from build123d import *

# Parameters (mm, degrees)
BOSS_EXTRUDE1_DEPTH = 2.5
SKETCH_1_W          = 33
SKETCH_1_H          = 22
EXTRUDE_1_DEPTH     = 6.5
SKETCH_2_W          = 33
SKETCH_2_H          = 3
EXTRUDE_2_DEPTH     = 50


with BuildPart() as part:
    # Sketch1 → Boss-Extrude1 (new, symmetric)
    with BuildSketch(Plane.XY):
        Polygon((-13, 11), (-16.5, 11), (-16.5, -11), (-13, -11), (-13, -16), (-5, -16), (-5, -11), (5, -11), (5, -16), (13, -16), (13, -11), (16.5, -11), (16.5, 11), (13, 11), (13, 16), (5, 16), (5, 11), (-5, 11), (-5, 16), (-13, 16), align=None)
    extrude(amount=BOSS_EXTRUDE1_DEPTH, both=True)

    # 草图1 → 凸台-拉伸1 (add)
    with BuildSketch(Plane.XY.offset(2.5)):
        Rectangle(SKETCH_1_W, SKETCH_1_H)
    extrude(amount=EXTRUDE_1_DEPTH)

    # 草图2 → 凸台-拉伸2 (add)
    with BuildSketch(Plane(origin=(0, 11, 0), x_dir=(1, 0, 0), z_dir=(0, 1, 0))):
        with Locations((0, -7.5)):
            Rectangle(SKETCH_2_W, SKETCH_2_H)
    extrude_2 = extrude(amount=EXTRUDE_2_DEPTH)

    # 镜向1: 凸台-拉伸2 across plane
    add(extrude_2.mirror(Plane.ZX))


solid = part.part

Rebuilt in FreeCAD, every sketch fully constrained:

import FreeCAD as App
import Part
import Sketcher

doc = App.newDocument("Part")
body = doc.addObject("PartDesign::Body", "Body")

# Sketch on XY plane
sketch1 = doc.addObject("Sketcher::SketchObject", "Sketch")
body.addObject(sketch1)
sketch1.AttachmentSupport = (doc.XY_Plane, [""])
sketch1.MapMode = "FlatFace"
sketch1.addGeometry(Part.LineSegment(App.Vector(-13, 11, 0), App.Vector(-16.5, 11, 0)), False)
sketch1.addGeometry(Part.LineSegment(App.Vector(-16.5, 11, 0), App.Vector(-16.5, -11, 0)), False)
sketch1.addGeometry(Part.LineSegment(App.Vector(-16.5, -11, 0), App.Vector(-13, -11, 0)), False)
sketch1.addGeometry(Part.LineSegment(App.Vector(-13, -11, 0), App.Vector(-13, -16, 0)), False)
sketch1.addGeometry(Part.LineSegment(App.Vector(-13, -16, 0), App.Vector(-5, -16, 0)), False)
sketch1.addGeometry(Part.LineSegment(App.Vector(-5, -16, 0), App.Vector(-5, -11, 0)), False)
sketch1.addGeometry(Part.LineSegment(App.Vector(-5, -11, 0), App.Vector(5, -11, 0)), False)
sketch1.addGeometry(Part.LineSegment(App.Vector(5, -11, 0), App.Vector(5, -16, 0)), False)
sketch1.addGeometry(Part.LineSegment(App.Vector(5, -16, 0), App.Vector(13, -16, 0)), False)
sketch1.addGeometry(Part.LineSegment(App.Vector(13, -16, 0), App.Vector(13, -11, 0)), False)
sketch1.addGeometry(Part.LineSegment(App.Vector(13, -11, 0), App.Vector(16.5, -11, 0)), False)
sketch1.addGeometry(Part.LineSegment(App.Vector(16.5, -11, 0), App.Vector(16.5, 11, 0)), False)
sketch1.addGeometry(Part.LineSegment(App.Vector(16.5, 11, 0), App.Vector(13, 11, 0)), False)
sketch1.addGeometry(Part.LineSegment(App.Vector(13, 11, 0), App.Vector(13, 16, 0)), False)
sketch1.addGeometry(Part.LineSegment(App.Vector(13, 16, 0), App.Vector(5, 16, 0)), False)
sketch1.addGeometry(Part.LineSegment(App.Vector(5, 16, 0), App.Vector(5, 11, 0)), False)
sketch1.addGeometry(Part.LineSegment(App.Vector(5, 11, 0), App.Vector(-5, 11, 0)), False)
sketch1.addGeometry(Part.LineSegment(App.Vector(-5, 11, 0), App.Vector(-5, 16, 0)), False)
sketch1.addGeometry(Part.LineSegment(App.Vector(-5, 16, 0), App.Vector(-13, 16, 0)), False)
sketch1.addGeometry(Part.LineSegment(App.Vector(-13, 16, 0), App.Vector(-13, 11, 0)), False)
sketch1.addConstraint(Sketcher.Constraint("Coincident", 0, 2, 1, 1))
sketch1.addConstraint(Sketcher.Constraint("Coincident", 1, 2, 2, 1))
sketch1.addConstraint(Sketcher.Constraint("Coincident", 2, 2, 3, 1))
sketch1.addConstraint(Sketcher.Constraint("Coincident", 3, 2, 4, 1))
sketch1.addConstraint(Sketcher.Constraint("Coincident", 4, 2, 5, 1))
sketch1.addConstraint(Sketcher.Constraint("Coincident", 5, 2, 6, 1))
sketch1.addConstraint(Sketcher.Constraint("Coincident", 6, 2, 7, 1))
sketch1.addConstraint(Sketcher.Constraint("Coincident", 7, 2, 8, 1))
sketch1.addConstraint(Sketcher.Constraint("Coincident", 8, 2, 9, 1))
sketch1.addConstraint(Sketcher.Constraint("Coincident", 9, 2, 10, 1))
sketch1.addConstraint(Sketcher.Constraint("Coincident", 10, 2, 11, 1))
sketch1.addConstraint(Sketcher.Constraint("Coincident", 11, 2, 12, 1))
sketch1.addConstraint(Sketcher.Constraint("Coincident", 12, 2, 13, 1))
sketch1.addConstraint(Sketcher.Constraint("Coincident", 13, 2, 14, 1))
sketch1.addConstraint(Sketcher.Constraint("Coincident", 14, 2, 15, 1))
sketch1.addConstraint(Sketcher.Constraint("Coincident", 15, 2, 16, 1))
sketch1.addConstraint(Sketcher.Constraint("Coincident", 16, 2, 17, 1))
sketch1.addConstraint(Sketcher.Constraint("Coincident", 17, 2, 18, 1))
sketch1.addConstraint(Sketcher.Constraint("Coincident", 18, 2, 19, 1))
sketch1.addConstraint(Sketcher.Constraint("Coincident", 19, 2, 0, 1))
sketch1.addConstraint(Sketcher.Constraint("Horizontal", 0))
sketch1.addConstraint(Sketcher.Constraint("Vertical", 1))
sketch1.addConstraint(Sketcher.Constraint("Horizontal", 2))
sketch1.addConstraint(Sketcher.Constraint("Vertical", 3))
sketch1.addConstraint(Sketcher.Constraint("Horizontal", 4))
sketch1.addConstraint(Sketcher.Constraint("Vertical", 5))
sketch1.addConstraint(Sketcher.Constraint("Horizontal", 6))
sketch1.addConstraint(Sketcher.Constraint("Vertical", 7))
sketch1.addConstraint(Sketcher.Constraint("Horizontal", 8))
sketch1.addConstraint(Sketcher.Constraint("Vertical", 9))
sketch1.addConstraint(Sketcher.Constraint("Horizontal", 10))
sketch1.addConstraint(Sketcher.Constraint("Vertical", 11))
sketch1.addConstraint(Sketcher.Constraint("Horizontal", 12))
sketch1.addConstraint(Sketcher.Constraint("Vertical", 13))
sketch1.addConstraint(Sketcher.Constraint("Horizontal", 14))
sketch1.addConstraint(Sketcher.Constraint("Vertical", 15))
sketch1.addConstraint(Sketcher.Constraint("Horizontal", 16))
sketch1.addConstraint(Sketcher.Constraint("Vertical", 17))
sketch1.addConstraint(Sketcher.Constraint("Horizontal", 18))
sketch1.addConstraint(Sketcher.Constraint("Vertical", 19))
sketch1.addConstraint(Sketcher.Constraint("Symmetric", 0, 2, 10, 2, -1, 1))
sketch1.addConstraint(Sketcher.Constraint("Symmetric", 2, 2, 12, 2, -1, 1))
sketch1.addConstraint(Sketcher.Constraint("Symmetric", 4, 2, 14, 2, -1, 1))
sketch1.addConstraint(Sketcher.Constraint("Symmetric", 6, 2, 16, 2, -1, 1))
sketch1.addConstraint(Sketcher.Constraint("Symmetric", 8, 2, 18, 2, -1, 1))
sketch1.addConstraint(Sketcher.Constraint("Symmetric", 4, 2, 7, 2, -2))
sketch1.addConstraint(Sketcher.Constraint("Symmetric", 2, 2, 9, 2, -2))
sketch1.addConstraint(Sketcher.Constraint("Horizontal", 2, 2, 5, 2))
sketch1.addConstraint(Sketcher.Constraint("DistanceX", 4, 1, 4, 2, 8.0))
sketch1.addConstraint(Sketcher.Constraint("DistanceX", 6, 1, 6, 2, 10.0))
sketch1.addConstraint(Sketcher.Constraint("DistanceY", 1, 2, 1, 1, 22.0))
sketch1.addConstraint(Sketcher.Constraint("DistanceY", 3, 2, 3, 1, 5.0))
sketch1.addConstraint(Sketcher.Constraint("DistanceX", 0, 2, 0, 1, 3.5))
pad1 = doc.addObject("PartDesign::Pad", "Pad")
body.addObject(pad1)
pad1.Profile = sketch1
pad1.Length = 5
pad1.Midplane = True

# Sketch on XY plane
sketch2 = doc.addObject("Sketcher::SketchObject", "Sketch001")
body.addObject(sketch2)
sketch2.AttachmentSupport = (doc.XY_Plane, [""])
sketch2.MapMode = "FlatFace"
sketch2.AttachmentOffset = App.Placement(App.Vector(0, 0, 2.5), App.Rotation())
sketch2.addGeometry(Part.LineSegment(App.Vector(-16, 11, 0), App.Vector(-16, -11, 0)), False)
sketch2.addGeometry(Part.LineSegment(App.Vector(-16, -11, 0), App.Vector(16, -11, 0)), False)
sketch2.addGeometry(Part.LineSegment(App.Vector(16, -11, 0), App.Vector(16, 11, 0)), False)
sketch2.addGeometry(Part.LineSegment(App.Vector(16, 11, 0), App.Vector(-16, 11, 0)), False)
sketch2.addConstraint(Sketcher.Constraint("Coincident", 0, 2, 1, 1))
sketch2.addConstraint(Sketcher.Constraint("Coincident", 1, 2, 2, 1))
sketch2.addConstraint(Sketcher.Constraint("Coincident", 2, 2, 3, 1))
sketch2.addConstraint(Sketcher.Constraint("Coincident", 3, 2, 0, 1))
sketch2.addConstraint(Sketcher.Constraint("Vertical", 0))
sketch2.addConstraint(Sketcher.Constraint("Horizontal", 1))
sketch2.addConstraint(Sketcher.Constraint("Vertical", 2))
sketch2.addConstraint(Sketcher.Constraint("Horizontal", 3))
sketch2.addConstraint(Sketcher.Constraint("Symmetric", 0, 2, 2, 2, -1, 1))
sketch2.addConstraint(Sketcher.Constraint("DistanceX", 1, 1, 1, 2, 33.0))
sketch2.addConstraint(Sketcher.Constraint("DistanceY", 0, 2, 0, 1, 22.0))
pad2 = doc.addObject("PartDesign::Pad", "Pad001")
body.addObject(pad2)
pad2.Profile = sketch2
pad2.Length = 6.5

# Sketch on XZ plane
sketch3 = doc.addObject("Sketcher::SketchObject", "Sketch002")
body.addObject(sketch3)
sketch3.AttachmentSupport = (doc.XZ_Plane, [""])
sketch3.MapMode = "FlatFace"
sketch3.AttachmentOffset = App.Placement(App.Vector(0, 0, -11), App.Rotation())
sketch3.addGeometry(Part.LineSegment(App.Vector(-16.5, 6, 0), App.Vector(-16.5, 9, 0)), False)
sketch3.addGeometry(Part.LineSegment(App.Vector(-16.5, 9, 0), App.Vector(16.5, 9, 0)), False)
sketch3.addGeometry(Part.LineSegment(App.Vector(16.5, 9, 0), App.Vector(16.5, 6, 0)), False)
sketch3.addGeometry(Part.LineSegment(App.Vector(16.5, 6, 0), App.Vector(-16.5, 6, 0)), False)
sketch3.addConstraint(Sketcher.Constraint("Coincident", 0, 2, 1, 1))
sketch3.addConstraint(Sketcher.Constraint("Coincident", 1, 2, 2, 1))
sketch3.addConstraint(Sketcher.Constraint("Coincident", 2, 2, 3, 1))
sketch3.addConstraint(Sketcher.Constraint("Coincident", 3, 2, 0, 1))
sketch3.addConstraint(Sketcher.Constraint("Vertical", 0))
sketch3.addConstraint(Sketcher.Constraint("Horizontal", 1))
sketch3.addConstraint(Sketcher.Constraint("Vertical", 2))
sketch3.addConstraint(Sketcher.Constraint("Horizontal", 3))
sketch3.addConstraint(Sketcher.Constraint("DistanceX", 1, 1, 1, 2, 33.0))
sketch3.addConstraint(Sketcher.Constraint("DistanceY", 0, 1, 0, 2, 3.0))
sketch3.addConstraint(Sketcher.Constraint("DistanceY", -1, 1, 0, 2, 9.0))
sketch3.addConstraint(Sketcher.Constraint("DistanceX", 0, 2, -1, 1, 16.5))
pad3 = doc.addObject("PartDesign::Pad", "Pad002")
body.addObject(pad3)
pad3.Profile = sketch3
pad3.Length = 50
pad3.Reversed = True
doc.recompute()

mirrored = doc.addObject("PartDesign::Mirrored", "Mirrored")
body.addObject(mirrored)
mirrored.Originals = [pad3]
mirrored.MirrorPlane = (doc.XZ_Plane, [""])
body.Tip = mirrored

doc.recompute()
